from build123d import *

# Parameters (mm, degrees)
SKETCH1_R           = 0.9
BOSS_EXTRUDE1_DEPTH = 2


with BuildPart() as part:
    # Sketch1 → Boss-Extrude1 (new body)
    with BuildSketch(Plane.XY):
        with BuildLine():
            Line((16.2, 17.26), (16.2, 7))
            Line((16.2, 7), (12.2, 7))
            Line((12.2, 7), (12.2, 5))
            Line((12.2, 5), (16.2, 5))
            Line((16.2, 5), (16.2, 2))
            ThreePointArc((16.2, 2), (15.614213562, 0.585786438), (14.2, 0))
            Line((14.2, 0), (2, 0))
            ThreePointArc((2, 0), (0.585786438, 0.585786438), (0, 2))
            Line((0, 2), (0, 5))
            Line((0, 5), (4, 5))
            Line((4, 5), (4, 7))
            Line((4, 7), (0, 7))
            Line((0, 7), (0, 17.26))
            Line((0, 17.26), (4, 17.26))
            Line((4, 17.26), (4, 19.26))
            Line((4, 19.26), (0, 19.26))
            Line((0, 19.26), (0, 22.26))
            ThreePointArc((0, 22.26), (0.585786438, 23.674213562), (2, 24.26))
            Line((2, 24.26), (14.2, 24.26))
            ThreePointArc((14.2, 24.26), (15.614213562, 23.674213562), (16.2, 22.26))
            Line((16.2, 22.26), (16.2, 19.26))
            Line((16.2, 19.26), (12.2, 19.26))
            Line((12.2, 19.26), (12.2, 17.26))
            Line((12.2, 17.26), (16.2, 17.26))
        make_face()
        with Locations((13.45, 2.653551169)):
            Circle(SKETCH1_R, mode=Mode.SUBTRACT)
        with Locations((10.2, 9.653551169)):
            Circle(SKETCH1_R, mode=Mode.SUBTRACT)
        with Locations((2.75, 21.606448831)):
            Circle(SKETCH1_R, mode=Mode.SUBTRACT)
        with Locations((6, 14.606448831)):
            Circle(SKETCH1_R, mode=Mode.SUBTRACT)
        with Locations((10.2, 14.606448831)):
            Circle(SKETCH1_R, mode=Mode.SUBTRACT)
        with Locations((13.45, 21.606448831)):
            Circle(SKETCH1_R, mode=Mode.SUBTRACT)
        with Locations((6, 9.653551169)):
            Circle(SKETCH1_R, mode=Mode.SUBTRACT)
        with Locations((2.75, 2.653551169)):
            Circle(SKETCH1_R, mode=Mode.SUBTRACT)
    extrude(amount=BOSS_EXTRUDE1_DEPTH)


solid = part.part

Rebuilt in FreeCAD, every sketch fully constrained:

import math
import FreeCAD as App
import Part
import Sketcher
from FreeCAD import Vector

doc = App.newDocument("Part")
params = doc.addObject("Spreadsheet::Sheet", "Params")
for row, (alias, value) in enumerate([
    ("sketch1_radius", "2 mm"),
    ("sketch1_diameter", "1.8 mm"),
    ("sketch1_width", "4 mm"),
    ("sketch1_height", "2 mm"),
    ("sketch1_height2", "3 mm"),
    ("pad1_length", "2 mm"),
], start=1):
    params.set(f"A{row}", alias)
    params.set(f"B{row}", "=" + value)
    params.setAlias(f"B{row}", alias)

body = doc.addObject("PartDesign::Body", "Body")

sketch1 = body.newObject("Sketcher::SketchObject", "Sketch")
sketch1.AttachmentSupport = (doc.getObject("XY_Plane"), [""])
sketch1.MapMode = "FlatFace"
sketch1.addGeometry([
    Part.LineSegment(Vector(16.2, 7, 0), Vector(16.2, 17.3, 0)),
    Part.LineSegment(Vector(16.2, 17.3, 0), Vector(12.2, 17.3, 0)),
    Part.LineSegment(Vector(12.2, 17.3, 0), Vector(12.2, 19.3, 0)),
    Part.LineSegment(Vector(12.2, 19.3, 0), Vector(16.2, 19.3, 0)),
    Part.LineSegment(Vector(16.2, 19.3, 0), Vector(16.2, 22.3, 0)),
    Part.ArcOfCircle(Part.Circle(Vector(14.2, 22.3, 0), Vector(0, 0, 1), 2), math.radians(0), math.radians(90)),
    Part.LineSegment(Vector(14.2, 24.3, 0), Vector(2, 24.3, 0)),
    Part.ArcOfCircle(Part.Circle(Vector(2, 22.3, 0), Vector(0, 0, 1), 2), math.radians(90), math.radians(180)),
    Part.LineSegment(Vector(0, 22.3, 0), Vector(0, 19.3, 0)),
    Part.LineSegment(Vector(0, 19.3, 0), Vector(4, 19.3, 0)),
    Part.LineSegment(Vector(4, 19.3, 0), Vector(4, 17.3, 0)),
    Part.LineSegment(Vector(4, 17.3, 0), Vector(0, 17.3, 0)),
    Part.LineSegment(Vector(0, 17.3, 0), Vector(0, 7, 0)),
    Part.LineSegment(Vector(0, 7, 0), Vector(4, 7, 0)),
    Part.LineSegment(Vector(4, 7, 0), Vector(4, 5, 0)),
    Part.LineSegment(Vector(4, 5, 0), Vector(0, 5, 0)),
    Part.LineSegment(Vector(0, 5, 0), Vector(0, 2, 0)),
    Part.ArcOfCircle(Part.Circle(Vector(2, 2, 0), Vector(0, 0, 1), 2), math.radians(-180), math.radians(-90)),
    Part.LineSegment(Vector(2, 0, 0), Vector(14.2, 0, 0)),
    Part.ArcOfCircle(Part.Circle(Vector(14.2, 2, 0), Vector(0, 0, 1), 2), math.radians(-90), math.radians(0)),
    Part.LineSegment(Vector(16.2, 2, 0), Vector(16.2, 5, 0)),
    Part.LineSegment(Vector(16.2, 5, 0), Vector(12.2, 5, 0)),
    Part.LineSegment(Vector(12.2, 5, 0), Vector(12.2, 7, 0)),
    Part.LineSegment(Vector(12.2, 7, 0), Vector(16.2, 7, 0)),
    Part.Circle(Vector(13.4, 2.7, 0), Vector(0, 0, 1), 0.9),
    Part.Circle(Vector(10.2, 9.7, 0), Vector(0, 0, 1), 0.9),
    Part.Circle(Vector(2.8, 2.7, 0), Vector(0, 0, 1), 0.9),
    Part.Circle(Vector(6, 9.7, 0), Vector(0, 0, 1), 0.9),
    Part.Circle(Vector(10.2, 14.6, 0), Vector(0, 0, 1), 0.9),
    Part.Circle(Vector(13.4, 21.6, 0), Vector(0, 0, 1), 0.9),
    Part.Circle(Vector(6, 14.6, 0), Vector(0, 0, 1), 0.9),
    Part.Circle(Vector(2.8, 21.6, 0), Vector(0, 0, 1), 0.9),
], False)
sketch1.addConstraint([
    Sketcher.Constraint("Coincident", 0, 2, 1, 1),
    Sketcher.Constraint("Coincident", 1, 2, 2, 1),
    Sketcher.Constraint("Coincident", 2, 2, 3, 1),
    Sketcher.Constraint("Coincident", 3, 2, 4, 1),
    Sketcher.Constraint("Tangent", 4, 2, 5, 1),
    Sketcher.Constraint("Tangent", 5, 2, 6, 1),
    Sketcher.Constraint("Tangent", 6, 2, 7, 1),
    Sketcher.Constraint("Tangent", 7, 2, 8, 1),
    Sketcher.Constraint("Coincident", 8, 2, 9, 1),
    Sketcher.Constraint("Coincident", 9, 2, 10, 1),
    Sketcher.Constraint("Coincident", 10, 2, 11, 1),
    Sketcher.Constraint("Coincident", 11, 2, 12, 1),
    Sketcher.Constraint("Coincident", 12, 2, 13, 1),
    Sketcher.Constraint("Coincident", 13, 2, 14, 1),
    Sketcher.Constraint("Coincident", 14, 2, 15, 1),
    Sketcher.Constraint("Coincident", 15, 2, 16, 1),
    Sketcher.Constraint("Tangent", 16, 2, 17, 1),
    Sketcher.Constraint("Tangent", 17, 2, 18, 1),
    Sketcher.Constraint("Tangent", 18, 2, 19, 1),
    Sketcher.Constraint("Tangent", 19, 2, 20, 1),
    Sketcher.Constraint("Coincident", 20, 2, 21, 1),
    Sketcher.Constraint("Coincident", 21, 2, 22, 1),
    Sketcher.Constraint("Coincident", 22, 2, 23, 1),
    Sketcher.Constraint("Coincident", 23, 2, 0, 1),
    Sketcher.Constraint("Vertical", 0),
    Sketcher.Constraint("Horizontal", 1),
    Sketcher.Constraint("Vertical", 2),
    Sketcher.Constraint("Horizontal", 3),
    Sketcher.Constraint("Vertical", 4),
    Sketcher.Constraint("Horizontal", 6),
    Sketcher.Constraint("Vertical", 8),
    Sketcher.Constraint("Horizontal", 9),
    Sketcher.Constraint("Vertical", 10),
    Sketcher.Constraint("Horizontal", 11),
    Sketcher.Constraint("Vertical", 12),
    Sketcher.Constraint("Horizontal", 13),
    Sketcher.Constraint("Vertical", 14),
    Sketcher.Constraint("Horizontal", 15),
    Sketcher.Constraint("Vertical", 16),
    Sketcher.Constraint("Horizontal", 18),
    Sketcher.Constraint("Vertical", 20),
    Sketcher.Constraint("Horizontal", 21),
    Sketcher.Constraint("Vertical", 22),
    Sketcher.Constraint("Horizontal", 23),
    Sketcher.Constraint("Equal", 5, 7),
    Sketcher.Constraint("Equal", 7, 17),
    Sketcher.Constraint("Equal", 17, 19),
    Sketcher.Constraint("Equal", 24, 25),
    Sketcher.Constraint("Equal", 25, 26),
    Sketcher.Constraint("Equal", 26, 27),
    Sketcher.Constraint("Equal", 27, 28),
    Sketcher.Constraint("Equal", 28, 29),
    Sketcher.Constraint("Equal", 29, 30),
    Sketcher.Constraint("Equal", 30, 31),
    Sketcher.Constraint("PointOnObject", 7, 2, -2),
    Sketcher.Constraint("PointOnObject", 11, 2, -2),
    Sketcher.Constraint("PointOnObject", 15, 2, -2),
    Sketcher.Constraint("PointOnObject", 17, 2, -1),
    Sketcher.Constraint("Horizontal", 24, 3, 26, 3),
    Sketcher.Constraint("Horizontal", 25, 3, 27, 3),
    Sketcher.Constraint("Horizontal", 28, 3, 30, 3),
    Sketcher.Constraint("Horizontal", 29, 3, 31, 3),
    Sketcher.Constraint("Horizontal", 3, 2, 8, 2),
    Sketcher.Constraint("Horizontal", 1, 2, 10, 2),
    Sketcher.Constraint("Horizontal", 15, 2, 20, 2),
    Sketcher.Constraint("Horizontal", 13, 2, 22, 2),
    Sketcher.Constraint("Vertical", 5, 3, 19, 3),
    Sketcher.Constraint("Vertical", 25, 3, 28, 3),
    Sketcher.Constraint("Vertical", 24, 3, 29, 3),
    Sketcher.Constraint("Vertical", 27, 3, 30, 3),
    Sketcher.Constraint("Vertical", 26, 3, 31, 3),
    Sketcher.Constraint("Vertical", 0, 2, 3, 2),
    Sketcher.Constraint("Vertical", 10, 2, 13, 2),
    Sketcher.Constraint("Vertical", 2, 2, 21, 2),
    Sketcher.Constraint("Equal", 3, 9),
    Sketcher.Constraint("Equal", 10, 14),
    Sketcher.Constraint("Equal", 8, 16),
    Sketcher.Constraint("Radius", 5, 2.0),
    Sketcher.Constraint("Diameter", 24, 1.8),
    Sketcher.Constraint("DistanceX", 1, 2, 1, 1, 4.0),
    Sketcher.Constraint("DistanceY", 2, 1, 2, 2, 2.0),
    Sketcher.Constraint("DistanceY", 4, 1, 4, 2, 3.0),
    Sketcher.Constraint("DistanceX", 6, 2, 6, 1, 12.2),
    Sketcher.Constraint("DistanceX", -1, 1, 27, 3, 6.0),
    Sketcher.Constraint("DistanceY", 24, 3, 25, 3, 7.0),
    Sketcher.Constraint("DistanceX", 25, 3, 19, 3, 4.0),
    Sketcher.Constraint("DistanceY", 28, 3, 29, 3, 7.0),
    Sketcher.Constraint("DistanceY", 0, 1, 0, 2, 10.26),
    Sketcher.Constraint("DistanceX", 26, 3, 24, 3, 10.7),
    Sketcher.Constraint("DistanceX", -1, 1, 24, 3, 13.45),
    Sketcher.Constraint("DistanceY", -1, 1, 24, 3, 2.653551),
    Sketcher.Constraint("DistanceY", -1, 1, 28, 3, 14.606449),
])
sketch1.setExpression("Constraints[77]", "Params.sketch1_radius")
sketch1.setExpression("Constraints[78]", "Params.sketch1_diameter")
sketch1.setExpression("Constraints[79]", "Params.sketch1_width")
sketch1.setExpression("Constraints[80]", "Params.sketch1_height")
sketch1.setExpression("Constraints[81]", "Params.sketch1_height2")
pad1 = body.newObject("PartDesign::Pad", "Pad")
pad1.Profile = sketch1
pad1.setExpression("Length", "Params.pad1_length")

doc.recompute()
